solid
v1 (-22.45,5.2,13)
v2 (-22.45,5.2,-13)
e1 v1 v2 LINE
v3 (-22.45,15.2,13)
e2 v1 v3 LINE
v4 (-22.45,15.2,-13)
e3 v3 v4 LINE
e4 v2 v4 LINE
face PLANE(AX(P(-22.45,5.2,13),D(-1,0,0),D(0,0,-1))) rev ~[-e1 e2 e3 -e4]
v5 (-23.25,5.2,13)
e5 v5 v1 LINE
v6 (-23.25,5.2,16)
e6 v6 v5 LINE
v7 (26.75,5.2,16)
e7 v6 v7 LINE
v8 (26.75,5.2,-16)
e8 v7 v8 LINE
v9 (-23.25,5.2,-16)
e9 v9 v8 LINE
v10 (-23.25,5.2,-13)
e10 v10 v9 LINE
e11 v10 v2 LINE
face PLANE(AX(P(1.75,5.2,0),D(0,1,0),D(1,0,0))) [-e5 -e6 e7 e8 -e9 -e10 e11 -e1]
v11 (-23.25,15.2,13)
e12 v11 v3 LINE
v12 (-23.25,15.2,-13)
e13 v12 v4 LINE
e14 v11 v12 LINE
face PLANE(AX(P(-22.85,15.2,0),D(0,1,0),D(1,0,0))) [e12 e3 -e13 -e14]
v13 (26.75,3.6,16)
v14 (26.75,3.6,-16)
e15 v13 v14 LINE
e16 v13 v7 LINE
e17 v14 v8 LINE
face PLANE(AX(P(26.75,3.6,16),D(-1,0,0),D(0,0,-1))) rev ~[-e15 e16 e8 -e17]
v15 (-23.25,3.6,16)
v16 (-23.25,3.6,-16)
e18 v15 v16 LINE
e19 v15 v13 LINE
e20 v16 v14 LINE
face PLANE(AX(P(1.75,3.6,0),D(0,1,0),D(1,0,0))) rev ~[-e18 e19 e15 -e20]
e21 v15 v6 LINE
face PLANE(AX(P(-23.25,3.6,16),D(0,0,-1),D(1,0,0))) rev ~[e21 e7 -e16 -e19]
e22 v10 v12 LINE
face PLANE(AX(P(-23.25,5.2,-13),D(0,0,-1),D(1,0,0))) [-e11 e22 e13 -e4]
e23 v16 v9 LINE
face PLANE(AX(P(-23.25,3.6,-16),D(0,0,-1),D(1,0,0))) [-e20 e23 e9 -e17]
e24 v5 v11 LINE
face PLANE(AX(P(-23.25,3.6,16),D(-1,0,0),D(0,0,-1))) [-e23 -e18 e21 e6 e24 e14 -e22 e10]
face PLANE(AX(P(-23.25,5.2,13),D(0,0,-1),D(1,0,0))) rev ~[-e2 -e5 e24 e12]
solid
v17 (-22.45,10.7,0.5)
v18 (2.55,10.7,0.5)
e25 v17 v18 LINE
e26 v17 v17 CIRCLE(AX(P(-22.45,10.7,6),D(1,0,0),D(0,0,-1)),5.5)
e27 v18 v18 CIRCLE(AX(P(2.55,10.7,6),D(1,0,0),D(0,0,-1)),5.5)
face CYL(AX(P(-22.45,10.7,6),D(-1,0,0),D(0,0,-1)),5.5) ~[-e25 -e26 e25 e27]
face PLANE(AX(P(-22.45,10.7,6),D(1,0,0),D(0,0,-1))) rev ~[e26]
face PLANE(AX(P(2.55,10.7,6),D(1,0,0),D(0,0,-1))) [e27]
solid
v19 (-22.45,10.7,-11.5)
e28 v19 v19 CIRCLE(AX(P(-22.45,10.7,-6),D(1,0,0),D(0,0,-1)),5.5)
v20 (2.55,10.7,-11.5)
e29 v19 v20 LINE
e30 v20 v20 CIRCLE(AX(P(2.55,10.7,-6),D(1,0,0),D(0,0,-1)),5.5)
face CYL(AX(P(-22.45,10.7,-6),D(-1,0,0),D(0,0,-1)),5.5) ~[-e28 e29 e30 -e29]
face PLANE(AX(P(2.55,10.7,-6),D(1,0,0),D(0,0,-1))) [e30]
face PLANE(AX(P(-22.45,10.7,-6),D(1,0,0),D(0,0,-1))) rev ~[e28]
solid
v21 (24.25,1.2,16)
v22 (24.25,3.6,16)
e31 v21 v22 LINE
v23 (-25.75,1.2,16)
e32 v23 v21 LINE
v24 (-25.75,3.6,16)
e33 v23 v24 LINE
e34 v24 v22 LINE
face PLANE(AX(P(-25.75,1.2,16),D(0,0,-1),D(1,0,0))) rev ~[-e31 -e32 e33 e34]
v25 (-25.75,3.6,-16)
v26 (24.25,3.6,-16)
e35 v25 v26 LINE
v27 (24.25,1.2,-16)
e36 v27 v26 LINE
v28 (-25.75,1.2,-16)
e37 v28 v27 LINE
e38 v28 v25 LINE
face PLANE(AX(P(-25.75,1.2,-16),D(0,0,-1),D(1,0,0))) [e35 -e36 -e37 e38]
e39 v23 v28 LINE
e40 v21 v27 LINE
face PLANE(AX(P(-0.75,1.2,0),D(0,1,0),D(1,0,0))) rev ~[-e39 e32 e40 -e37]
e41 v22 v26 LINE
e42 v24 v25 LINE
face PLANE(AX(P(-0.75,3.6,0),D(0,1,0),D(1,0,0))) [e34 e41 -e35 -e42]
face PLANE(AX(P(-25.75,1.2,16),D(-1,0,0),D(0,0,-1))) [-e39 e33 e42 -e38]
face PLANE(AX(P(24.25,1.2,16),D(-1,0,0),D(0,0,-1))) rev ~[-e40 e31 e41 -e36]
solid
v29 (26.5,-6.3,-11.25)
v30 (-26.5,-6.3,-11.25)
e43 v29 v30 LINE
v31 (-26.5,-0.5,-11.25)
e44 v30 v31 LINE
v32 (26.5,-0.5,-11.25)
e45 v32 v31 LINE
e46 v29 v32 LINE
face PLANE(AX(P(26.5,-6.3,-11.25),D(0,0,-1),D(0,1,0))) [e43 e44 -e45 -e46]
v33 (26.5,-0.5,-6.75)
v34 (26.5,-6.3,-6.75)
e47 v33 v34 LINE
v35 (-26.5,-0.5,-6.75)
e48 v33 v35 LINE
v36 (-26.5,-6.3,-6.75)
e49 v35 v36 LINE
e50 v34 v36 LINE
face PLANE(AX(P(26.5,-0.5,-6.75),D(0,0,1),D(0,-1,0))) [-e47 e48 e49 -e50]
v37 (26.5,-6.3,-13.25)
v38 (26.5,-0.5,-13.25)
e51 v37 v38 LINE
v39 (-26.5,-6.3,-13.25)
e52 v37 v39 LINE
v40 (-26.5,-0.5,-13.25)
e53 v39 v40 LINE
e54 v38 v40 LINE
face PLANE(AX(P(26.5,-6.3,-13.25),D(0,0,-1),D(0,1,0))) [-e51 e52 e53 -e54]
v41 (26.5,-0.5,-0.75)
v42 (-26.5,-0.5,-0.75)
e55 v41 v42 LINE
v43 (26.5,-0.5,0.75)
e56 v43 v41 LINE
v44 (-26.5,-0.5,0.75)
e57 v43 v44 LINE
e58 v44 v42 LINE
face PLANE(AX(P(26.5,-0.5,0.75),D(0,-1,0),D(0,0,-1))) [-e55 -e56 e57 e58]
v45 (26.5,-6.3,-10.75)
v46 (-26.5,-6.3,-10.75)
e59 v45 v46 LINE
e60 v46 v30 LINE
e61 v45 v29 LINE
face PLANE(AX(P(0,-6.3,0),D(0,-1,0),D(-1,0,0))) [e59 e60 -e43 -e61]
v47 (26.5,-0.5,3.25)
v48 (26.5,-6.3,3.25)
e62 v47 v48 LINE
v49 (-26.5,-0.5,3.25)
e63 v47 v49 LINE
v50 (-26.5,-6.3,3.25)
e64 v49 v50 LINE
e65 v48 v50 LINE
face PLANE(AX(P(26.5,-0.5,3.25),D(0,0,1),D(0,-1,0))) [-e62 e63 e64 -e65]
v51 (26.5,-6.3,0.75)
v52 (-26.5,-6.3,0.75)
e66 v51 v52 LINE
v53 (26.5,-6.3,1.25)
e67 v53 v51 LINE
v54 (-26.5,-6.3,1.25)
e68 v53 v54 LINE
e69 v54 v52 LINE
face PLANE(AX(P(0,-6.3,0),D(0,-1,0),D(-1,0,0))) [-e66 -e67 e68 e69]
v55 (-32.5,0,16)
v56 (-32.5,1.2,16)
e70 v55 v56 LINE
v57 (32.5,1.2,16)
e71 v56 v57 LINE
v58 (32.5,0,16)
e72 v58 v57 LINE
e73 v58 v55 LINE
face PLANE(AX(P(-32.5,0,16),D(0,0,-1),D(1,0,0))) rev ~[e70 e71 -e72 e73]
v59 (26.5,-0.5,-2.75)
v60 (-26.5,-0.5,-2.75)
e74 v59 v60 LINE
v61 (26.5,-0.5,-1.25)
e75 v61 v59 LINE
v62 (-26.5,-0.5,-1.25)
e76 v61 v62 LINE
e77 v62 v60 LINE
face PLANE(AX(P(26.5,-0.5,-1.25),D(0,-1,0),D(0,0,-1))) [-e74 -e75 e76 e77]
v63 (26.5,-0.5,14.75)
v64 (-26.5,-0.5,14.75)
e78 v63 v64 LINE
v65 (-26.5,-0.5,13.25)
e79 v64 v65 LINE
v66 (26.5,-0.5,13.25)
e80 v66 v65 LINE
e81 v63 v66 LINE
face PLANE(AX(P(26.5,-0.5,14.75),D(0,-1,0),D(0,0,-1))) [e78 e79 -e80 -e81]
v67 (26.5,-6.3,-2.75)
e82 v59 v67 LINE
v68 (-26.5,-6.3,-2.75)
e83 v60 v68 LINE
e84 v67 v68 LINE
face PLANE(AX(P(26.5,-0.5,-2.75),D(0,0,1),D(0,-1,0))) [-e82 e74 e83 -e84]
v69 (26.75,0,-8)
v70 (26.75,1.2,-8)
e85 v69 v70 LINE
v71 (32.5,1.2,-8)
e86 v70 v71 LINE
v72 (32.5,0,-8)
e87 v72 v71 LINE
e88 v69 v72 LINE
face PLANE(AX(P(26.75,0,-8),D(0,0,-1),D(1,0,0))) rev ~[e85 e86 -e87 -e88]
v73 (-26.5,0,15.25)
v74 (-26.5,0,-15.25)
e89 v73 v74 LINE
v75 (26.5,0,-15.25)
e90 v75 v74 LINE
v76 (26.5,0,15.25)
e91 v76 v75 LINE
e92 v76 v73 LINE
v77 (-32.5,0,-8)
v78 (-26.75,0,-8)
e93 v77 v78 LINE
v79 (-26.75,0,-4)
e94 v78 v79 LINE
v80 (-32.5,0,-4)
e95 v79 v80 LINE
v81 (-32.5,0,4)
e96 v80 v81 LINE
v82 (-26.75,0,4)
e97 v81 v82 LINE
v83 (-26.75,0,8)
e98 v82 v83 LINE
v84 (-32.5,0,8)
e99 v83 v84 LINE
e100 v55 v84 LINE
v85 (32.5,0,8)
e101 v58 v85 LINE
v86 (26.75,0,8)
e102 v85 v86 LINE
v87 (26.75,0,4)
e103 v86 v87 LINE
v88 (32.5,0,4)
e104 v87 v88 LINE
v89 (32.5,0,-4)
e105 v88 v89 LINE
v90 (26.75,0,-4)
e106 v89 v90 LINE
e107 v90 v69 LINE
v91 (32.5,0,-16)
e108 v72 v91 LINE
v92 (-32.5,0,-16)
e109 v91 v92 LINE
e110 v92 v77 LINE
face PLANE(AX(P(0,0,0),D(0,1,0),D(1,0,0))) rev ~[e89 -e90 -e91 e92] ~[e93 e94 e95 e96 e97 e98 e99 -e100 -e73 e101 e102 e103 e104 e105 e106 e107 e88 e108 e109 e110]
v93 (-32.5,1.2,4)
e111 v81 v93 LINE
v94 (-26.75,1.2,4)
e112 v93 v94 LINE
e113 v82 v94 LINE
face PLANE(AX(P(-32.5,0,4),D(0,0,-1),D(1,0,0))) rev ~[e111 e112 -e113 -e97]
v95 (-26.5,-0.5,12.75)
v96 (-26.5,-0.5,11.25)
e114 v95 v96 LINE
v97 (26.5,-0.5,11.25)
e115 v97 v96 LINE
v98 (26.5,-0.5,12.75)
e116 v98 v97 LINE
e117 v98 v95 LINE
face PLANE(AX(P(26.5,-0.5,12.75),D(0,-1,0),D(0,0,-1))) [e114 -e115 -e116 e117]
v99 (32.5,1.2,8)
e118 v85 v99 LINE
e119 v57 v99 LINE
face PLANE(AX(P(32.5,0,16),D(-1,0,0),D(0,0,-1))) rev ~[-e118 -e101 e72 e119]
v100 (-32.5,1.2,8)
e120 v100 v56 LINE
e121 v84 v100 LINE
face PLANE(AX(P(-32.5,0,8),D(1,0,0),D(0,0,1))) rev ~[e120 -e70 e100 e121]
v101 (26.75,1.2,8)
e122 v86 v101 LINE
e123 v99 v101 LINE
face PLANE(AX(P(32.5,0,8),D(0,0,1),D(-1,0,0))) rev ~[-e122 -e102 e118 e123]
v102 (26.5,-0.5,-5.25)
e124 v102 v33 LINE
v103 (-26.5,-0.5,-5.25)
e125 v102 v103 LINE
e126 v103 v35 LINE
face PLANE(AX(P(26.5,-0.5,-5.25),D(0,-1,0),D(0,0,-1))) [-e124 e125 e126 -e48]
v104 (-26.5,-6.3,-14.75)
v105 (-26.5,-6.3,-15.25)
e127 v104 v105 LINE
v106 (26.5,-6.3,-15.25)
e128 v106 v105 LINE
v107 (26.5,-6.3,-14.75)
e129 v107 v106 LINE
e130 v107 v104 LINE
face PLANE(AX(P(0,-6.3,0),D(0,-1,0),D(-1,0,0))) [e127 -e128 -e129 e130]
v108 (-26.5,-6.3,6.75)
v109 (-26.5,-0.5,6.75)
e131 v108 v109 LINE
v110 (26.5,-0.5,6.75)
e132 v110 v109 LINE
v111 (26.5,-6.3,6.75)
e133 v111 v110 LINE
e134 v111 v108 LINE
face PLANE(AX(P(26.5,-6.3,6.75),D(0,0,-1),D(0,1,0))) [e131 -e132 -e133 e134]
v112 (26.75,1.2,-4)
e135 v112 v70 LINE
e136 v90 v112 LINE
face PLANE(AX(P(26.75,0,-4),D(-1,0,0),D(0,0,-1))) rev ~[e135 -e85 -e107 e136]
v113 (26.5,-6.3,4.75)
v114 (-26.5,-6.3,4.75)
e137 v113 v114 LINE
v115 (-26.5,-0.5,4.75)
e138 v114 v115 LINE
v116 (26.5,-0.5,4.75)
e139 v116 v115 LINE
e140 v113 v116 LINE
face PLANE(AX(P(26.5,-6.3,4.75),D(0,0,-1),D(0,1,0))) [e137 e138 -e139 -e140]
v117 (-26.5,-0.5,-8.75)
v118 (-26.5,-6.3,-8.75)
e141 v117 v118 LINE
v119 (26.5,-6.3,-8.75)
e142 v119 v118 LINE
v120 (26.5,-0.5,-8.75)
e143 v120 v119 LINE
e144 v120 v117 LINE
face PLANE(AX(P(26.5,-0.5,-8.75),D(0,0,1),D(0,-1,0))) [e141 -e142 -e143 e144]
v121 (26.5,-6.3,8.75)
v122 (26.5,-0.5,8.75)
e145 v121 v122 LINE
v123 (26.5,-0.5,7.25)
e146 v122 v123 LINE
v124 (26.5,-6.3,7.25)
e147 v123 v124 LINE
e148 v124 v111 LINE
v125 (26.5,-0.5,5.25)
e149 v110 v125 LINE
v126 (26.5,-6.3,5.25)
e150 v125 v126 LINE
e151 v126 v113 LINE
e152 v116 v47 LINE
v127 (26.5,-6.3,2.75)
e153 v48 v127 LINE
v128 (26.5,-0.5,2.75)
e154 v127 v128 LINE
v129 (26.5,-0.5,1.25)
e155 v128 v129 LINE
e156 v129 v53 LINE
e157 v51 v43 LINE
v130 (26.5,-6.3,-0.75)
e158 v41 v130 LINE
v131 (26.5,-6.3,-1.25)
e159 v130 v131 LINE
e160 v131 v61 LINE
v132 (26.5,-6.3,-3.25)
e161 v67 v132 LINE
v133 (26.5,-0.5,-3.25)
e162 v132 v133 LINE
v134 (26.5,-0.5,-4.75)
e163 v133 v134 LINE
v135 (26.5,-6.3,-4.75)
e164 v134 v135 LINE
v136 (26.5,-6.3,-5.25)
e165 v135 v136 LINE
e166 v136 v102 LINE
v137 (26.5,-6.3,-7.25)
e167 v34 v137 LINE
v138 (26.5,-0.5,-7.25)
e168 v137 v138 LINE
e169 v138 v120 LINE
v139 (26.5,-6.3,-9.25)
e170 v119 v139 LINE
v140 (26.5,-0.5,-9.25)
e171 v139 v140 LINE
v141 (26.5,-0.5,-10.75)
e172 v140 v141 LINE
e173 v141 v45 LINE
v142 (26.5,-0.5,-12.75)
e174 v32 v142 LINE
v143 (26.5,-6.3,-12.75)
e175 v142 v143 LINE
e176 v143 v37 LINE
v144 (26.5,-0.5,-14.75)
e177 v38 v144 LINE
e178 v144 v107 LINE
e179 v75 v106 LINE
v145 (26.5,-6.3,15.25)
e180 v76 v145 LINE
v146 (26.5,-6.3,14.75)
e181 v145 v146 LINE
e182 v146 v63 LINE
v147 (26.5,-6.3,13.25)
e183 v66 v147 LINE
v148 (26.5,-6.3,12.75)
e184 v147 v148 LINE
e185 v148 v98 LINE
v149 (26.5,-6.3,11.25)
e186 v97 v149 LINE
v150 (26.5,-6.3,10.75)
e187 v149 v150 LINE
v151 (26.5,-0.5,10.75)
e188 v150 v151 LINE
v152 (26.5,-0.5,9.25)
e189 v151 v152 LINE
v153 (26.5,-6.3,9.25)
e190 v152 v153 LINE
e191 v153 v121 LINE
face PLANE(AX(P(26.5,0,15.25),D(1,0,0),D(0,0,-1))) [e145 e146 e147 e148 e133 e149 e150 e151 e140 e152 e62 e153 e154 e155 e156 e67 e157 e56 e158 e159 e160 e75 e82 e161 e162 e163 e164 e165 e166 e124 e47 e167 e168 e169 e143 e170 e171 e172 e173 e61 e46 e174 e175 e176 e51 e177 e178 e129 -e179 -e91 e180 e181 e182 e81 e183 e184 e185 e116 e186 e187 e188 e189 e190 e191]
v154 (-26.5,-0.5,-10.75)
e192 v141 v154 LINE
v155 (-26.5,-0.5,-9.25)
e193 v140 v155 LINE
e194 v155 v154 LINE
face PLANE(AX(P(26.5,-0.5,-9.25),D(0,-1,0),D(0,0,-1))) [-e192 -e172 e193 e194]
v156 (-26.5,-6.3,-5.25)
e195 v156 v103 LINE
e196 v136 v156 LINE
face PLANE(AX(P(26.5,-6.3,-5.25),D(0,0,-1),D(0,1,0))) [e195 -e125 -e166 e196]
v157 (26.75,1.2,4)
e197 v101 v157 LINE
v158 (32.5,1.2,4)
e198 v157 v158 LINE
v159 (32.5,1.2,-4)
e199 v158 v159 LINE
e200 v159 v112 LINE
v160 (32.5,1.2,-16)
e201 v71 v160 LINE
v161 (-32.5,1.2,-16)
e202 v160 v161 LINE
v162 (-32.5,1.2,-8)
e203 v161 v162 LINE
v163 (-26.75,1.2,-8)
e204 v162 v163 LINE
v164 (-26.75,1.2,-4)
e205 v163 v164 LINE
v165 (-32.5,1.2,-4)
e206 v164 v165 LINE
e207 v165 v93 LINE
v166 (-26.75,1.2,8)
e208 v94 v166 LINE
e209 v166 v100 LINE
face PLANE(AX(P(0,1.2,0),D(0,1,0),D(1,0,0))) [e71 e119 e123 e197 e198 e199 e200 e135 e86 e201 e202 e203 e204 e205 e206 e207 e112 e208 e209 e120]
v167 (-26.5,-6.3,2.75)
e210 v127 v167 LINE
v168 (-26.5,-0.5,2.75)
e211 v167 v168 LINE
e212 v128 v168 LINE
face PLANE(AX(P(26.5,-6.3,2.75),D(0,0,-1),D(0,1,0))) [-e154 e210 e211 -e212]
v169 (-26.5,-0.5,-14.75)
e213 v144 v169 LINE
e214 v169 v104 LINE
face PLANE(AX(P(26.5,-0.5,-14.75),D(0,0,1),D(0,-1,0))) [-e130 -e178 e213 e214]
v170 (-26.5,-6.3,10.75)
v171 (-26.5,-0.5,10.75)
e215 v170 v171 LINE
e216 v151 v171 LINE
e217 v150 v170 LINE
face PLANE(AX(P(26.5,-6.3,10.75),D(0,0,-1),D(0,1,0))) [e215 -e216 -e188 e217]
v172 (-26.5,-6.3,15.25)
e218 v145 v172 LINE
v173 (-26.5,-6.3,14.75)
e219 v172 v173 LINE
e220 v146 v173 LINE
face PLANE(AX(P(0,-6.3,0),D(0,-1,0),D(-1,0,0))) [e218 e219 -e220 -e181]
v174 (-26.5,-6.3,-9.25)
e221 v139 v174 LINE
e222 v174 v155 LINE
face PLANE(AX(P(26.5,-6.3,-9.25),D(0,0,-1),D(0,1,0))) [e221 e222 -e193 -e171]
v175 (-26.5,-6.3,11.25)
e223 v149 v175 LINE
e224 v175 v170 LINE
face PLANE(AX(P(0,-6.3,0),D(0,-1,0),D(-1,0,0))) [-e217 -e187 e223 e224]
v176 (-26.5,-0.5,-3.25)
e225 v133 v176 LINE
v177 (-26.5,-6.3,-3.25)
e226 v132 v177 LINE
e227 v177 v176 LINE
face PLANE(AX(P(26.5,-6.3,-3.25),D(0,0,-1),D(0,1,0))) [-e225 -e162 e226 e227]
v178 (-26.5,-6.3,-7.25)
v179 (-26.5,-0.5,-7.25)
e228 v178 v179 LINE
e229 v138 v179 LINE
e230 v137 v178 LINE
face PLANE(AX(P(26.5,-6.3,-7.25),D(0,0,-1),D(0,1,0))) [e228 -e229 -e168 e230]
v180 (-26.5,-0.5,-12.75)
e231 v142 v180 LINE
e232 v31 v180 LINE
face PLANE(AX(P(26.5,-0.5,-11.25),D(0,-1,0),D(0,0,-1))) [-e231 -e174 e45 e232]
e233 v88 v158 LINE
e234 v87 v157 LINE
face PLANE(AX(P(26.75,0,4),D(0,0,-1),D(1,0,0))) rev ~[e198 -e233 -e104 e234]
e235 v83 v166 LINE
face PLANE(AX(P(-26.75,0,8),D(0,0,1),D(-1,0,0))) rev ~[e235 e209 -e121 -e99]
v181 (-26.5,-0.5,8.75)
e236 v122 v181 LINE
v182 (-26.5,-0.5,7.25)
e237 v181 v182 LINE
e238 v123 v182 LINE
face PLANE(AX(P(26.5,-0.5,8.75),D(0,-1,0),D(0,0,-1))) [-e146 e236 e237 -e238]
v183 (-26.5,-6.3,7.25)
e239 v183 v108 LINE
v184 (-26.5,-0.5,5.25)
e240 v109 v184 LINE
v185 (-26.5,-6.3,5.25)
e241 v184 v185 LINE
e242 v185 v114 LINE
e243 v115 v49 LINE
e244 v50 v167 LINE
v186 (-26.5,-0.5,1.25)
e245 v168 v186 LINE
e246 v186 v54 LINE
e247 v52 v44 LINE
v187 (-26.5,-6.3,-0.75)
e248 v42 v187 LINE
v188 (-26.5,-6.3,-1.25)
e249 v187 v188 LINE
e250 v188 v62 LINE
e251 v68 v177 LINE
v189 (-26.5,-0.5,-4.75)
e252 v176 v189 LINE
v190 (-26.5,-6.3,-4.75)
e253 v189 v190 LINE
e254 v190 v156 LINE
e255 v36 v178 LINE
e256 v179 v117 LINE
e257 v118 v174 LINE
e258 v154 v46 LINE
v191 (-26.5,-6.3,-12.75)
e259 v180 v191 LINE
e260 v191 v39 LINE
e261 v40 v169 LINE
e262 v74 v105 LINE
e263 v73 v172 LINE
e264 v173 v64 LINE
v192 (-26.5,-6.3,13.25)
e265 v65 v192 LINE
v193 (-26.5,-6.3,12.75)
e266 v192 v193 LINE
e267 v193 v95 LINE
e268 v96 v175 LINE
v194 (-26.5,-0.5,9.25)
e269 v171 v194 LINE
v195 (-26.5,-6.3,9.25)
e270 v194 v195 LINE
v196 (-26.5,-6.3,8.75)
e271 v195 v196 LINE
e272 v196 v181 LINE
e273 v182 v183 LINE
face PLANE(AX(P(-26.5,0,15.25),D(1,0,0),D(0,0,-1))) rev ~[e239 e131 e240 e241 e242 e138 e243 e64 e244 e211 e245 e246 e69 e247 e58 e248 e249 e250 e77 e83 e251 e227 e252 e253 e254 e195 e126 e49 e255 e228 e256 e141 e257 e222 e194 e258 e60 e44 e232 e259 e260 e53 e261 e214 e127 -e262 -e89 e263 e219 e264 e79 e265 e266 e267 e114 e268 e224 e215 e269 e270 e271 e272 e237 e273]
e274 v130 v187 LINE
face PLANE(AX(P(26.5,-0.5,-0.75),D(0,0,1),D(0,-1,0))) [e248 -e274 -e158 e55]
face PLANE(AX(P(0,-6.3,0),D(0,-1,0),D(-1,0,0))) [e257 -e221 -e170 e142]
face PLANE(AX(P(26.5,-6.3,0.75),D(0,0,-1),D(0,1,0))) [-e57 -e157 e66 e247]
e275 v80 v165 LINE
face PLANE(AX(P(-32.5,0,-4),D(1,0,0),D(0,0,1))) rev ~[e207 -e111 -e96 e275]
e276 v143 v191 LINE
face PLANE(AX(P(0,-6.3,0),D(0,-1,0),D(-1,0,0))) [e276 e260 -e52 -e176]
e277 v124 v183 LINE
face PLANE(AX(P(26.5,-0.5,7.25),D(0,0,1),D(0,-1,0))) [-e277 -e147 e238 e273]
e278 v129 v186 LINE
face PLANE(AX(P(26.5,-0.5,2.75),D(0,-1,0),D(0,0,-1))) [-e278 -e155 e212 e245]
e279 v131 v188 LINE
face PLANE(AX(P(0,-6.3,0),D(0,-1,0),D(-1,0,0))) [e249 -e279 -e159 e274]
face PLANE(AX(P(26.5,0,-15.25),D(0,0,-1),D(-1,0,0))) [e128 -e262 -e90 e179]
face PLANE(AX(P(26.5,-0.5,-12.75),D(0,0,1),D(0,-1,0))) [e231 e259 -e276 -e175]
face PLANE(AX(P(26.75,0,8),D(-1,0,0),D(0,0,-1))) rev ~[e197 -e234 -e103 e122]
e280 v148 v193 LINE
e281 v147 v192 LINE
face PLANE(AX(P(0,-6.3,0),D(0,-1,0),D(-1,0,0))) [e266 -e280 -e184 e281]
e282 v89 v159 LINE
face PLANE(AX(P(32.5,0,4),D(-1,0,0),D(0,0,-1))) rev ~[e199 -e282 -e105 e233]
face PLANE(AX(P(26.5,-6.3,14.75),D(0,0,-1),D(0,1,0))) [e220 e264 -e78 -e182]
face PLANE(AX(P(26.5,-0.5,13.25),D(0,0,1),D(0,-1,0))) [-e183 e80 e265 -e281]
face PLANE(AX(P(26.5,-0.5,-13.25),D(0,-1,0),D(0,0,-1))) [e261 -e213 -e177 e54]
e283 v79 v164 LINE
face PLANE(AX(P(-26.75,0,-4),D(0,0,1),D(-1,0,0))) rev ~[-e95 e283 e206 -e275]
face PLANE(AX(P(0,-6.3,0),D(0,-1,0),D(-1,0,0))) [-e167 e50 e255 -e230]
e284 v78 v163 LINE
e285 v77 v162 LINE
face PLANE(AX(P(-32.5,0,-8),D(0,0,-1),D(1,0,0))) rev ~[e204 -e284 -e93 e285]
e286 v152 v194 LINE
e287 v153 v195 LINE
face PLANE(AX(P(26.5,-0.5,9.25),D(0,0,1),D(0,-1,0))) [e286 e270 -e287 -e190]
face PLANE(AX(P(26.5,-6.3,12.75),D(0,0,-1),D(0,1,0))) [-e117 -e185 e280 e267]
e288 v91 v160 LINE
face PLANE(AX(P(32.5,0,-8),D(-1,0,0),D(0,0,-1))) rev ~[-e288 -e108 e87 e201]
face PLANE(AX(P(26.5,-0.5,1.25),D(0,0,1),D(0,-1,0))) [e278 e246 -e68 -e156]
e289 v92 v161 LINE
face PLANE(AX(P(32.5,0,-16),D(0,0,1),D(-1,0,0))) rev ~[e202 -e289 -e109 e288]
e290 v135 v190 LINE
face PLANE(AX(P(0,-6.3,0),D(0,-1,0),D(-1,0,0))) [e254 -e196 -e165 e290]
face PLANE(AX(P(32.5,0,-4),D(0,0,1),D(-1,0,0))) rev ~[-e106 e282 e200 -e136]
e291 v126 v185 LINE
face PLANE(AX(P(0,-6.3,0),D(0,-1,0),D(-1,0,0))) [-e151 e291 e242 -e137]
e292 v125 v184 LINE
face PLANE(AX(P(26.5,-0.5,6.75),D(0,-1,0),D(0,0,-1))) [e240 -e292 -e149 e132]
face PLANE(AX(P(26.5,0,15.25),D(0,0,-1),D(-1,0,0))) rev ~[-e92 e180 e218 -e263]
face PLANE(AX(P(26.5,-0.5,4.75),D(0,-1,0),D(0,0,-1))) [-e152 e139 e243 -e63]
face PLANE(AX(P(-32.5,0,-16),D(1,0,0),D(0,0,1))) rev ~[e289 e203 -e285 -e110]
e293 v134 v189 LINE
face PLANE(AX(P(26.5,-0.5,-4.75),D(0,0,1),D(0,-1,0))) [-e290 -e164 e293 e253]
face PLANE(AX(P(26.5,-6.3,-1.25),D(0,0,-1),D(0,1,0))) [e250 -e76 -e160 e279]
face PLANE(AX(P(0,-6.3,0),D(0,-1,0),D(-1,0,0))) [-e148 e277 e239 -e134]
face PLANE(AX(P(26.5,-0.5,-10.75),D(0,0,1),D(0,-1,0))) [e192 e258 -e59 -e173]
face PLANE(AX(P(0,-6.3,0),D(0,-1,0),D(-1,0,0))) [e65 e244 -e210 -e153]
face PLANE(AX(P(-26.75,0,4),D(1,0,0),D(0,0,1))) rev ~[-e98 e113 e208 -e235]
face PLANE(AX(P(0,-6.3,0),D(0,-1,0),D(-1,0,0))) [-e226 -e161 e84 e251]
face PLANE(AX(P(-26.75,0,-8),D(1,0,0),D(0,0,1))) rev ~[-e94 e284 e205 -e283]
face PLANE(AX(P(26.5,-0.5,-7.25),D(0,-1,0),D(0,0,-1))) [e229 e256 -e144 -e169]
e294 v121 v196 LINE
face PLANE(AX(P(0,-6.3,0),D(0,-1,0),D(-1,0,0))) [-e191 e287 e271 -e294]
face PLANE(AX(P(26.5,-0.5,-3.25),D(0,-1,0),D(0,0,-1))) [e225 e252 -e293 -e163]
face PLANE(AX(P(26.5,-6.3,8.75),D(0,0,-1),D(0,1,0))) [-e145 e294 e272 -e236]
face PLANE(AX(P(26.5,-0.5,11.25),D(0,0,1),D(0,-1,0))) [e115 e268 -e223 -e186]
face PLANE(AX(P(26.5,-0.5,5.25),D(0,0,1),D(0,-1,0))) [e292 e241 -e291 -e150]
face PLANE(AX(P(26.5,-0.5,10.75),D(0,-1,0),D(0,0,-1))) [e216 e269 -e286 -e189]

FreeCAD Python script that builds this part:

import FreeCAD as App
import Part
import Sketcher

doc = App.newDocument("Part")
body = doc.addObject("PartDesign::Body", "Body")

# Sketch on XZ plane
sketch1 = doc.addObject("Sketcher::SketchObject", "Sketch")
body.addObject(sketch1)
sketch1.AttachmentSupport = (doc.XZ_Plane, [""])
sketch1.MapMode = "FlatFace"
sketch1.addGeometry([
    Part.LineSegment(App.Vector(-32.5, -16, 0), App.Vector(-32.5, -8, 0)),  # 0
    Part.LineSegment(App.Vector(-32.5, -8, 0), App.Vector(-26.75, -8, 0)),  # 1
    Part.LineSegment(App.Vector(-26.75, -8, 0), App.Vector(-26.75, -4, 0)),  # 2
    Part.LineSegment(App.Vector(-26.75, -4, 0), App.Vector(-32.5, -4, 0)),  # 3
    Part.LineSegment(App.Vector(-32.5, -4, 0), App.Vector(-32.5, 4, 0)),  # 4
    Part.LineSegment(App.Vector(-32.5, 4, 0), App.Vector(-26.75, 4, 0)),  # 5
    Part.LineSegment(App.Vector(-26.75, 4, 0), App.Vector(-26.75, 8, 0)),  # 6
    Part.LineSegment(App.Vector(-26.75, 8, 0), App.Vector(-32.5, 8, 0)),  # 7
    Part.LineSegment(App.Vector(-32.5, 8, 0), App.Vector(-32.5, 16, 0)),  # 8
    Part.LineSegment(App.Vector(-32.5, 16, 0), App.Vector(32.5, 16, 0)),  # 9
    Part.LineSegment(App.Vector(32.5, 16, 0), App.Vector(32.5, 8, 0)),  # 10
    Part.LineSegment(App.Vector(32.5, 8, 0), App.Vector(26.75, 8, 0)),  # 11
    Part.LineSegment(App.Vector(26.75, 8, 0), App.Vector(26.75, 4, 0)),  # 12
    Part.LineSegment(App.Vector(26.75, 4, 0), App.Vector(32.5, 4, 0)),  # 13
    Part.LineSegment(App.Vector(32.5, 4, 0), App.Vector(32.5, -4, 0)),  # 14
    Part.LineSegment(App.Vector(32.5, -4, 0), App.Vector(26.75, -4, 0)),  # 15
    Part.LineSegment(App.Vector(26.75, -4, 0), App.Vector(26.75, -8, 0)),  # 16
    Part.LineSegment(App.Vector(26.75, -8, 0), App.Vector(32.5, -8, 0)),  # 17
    Part.LineSegment(App.Vector(32.5, -8, 0), App.Vector(32.5, -16, 0)),  # 18
    Part.LineSegment(App.Vector(32.5, -16, 0), App.Vector(-32.5, -16, 0)),  # 19
], False)
sketch1.addConstraint([
    Sketcher.Constraint("Coincident", 0, 2, 1, 1),
    Sketcher.Constraint("Coincident", 1, 2, 2, 1),
    Sketcher.Constraint("Coincident", 2, 2, 3, 1),
    Sketcher.Constraint("Coincident", 3, 2, 4, 1),
    Sketcher.Constraint("Coincident", 4, 2, 5, 1),
    Sketcher.Constraint("Coincident", 5, 2, 6, 1),
    Sketcher.Constraint("Coincident", 6, 2, 7, 1),
    Sketcher.Constraint("Coincident", 7, 2, 8, 1),
    Sketcher.Constraint("Coincident", 8, 2, 9, 1),
    Sketcher.Constraint("Coincident", 9, 2, 10, 1),
    Sketcher.Constraint("Coincident", 10, 2, 11, 1),
    Sketcher.Constraint("Coincident", 11, 2, 12, 1),
    Sketcher.Constraint("Coincident", 12, 2, 13, 1),
    Sketcher.Constraint("Coincident", 13, 2, 14, 1),
    Sketcher.Constraint("Coincident", 14, 2, 15, 1),
    Sketcher.Constraint("Coincident", 15, 2, 16, 1),
    Sketcher.Constraint("Coincident", 16, 2, 17, 1),
    Sketcher.Constraint("Coincident", 17, 2, 18, 1),
    Sketcher.Constraint("Coincident", 18, 2, 19, 1),
    Sketcher.Constraint("Coincident", 19, 2, 0, 1),
    Sketcher.Constraint("Vertical", 0),
    Sketcher.Constraint("Horizontal", 1),
    Sketcher.Constraint("Vertical", 2),
    Sketcher.Constraint("Horizontal", 3),
    Sketcher.Constraint("Vertical", 4),
    Sketcher.Constraint("Horizontal", 5),
    Sketcher.Constraint("Vertical", 6),
    Sketcher.Constraint("Horizontal", 7),
    Sketcher.Constraint("Vertical", 8),
    Sketcher.Constraint("Horizontal", 9),
    Sketcher.Constraint("Vertical", 10),
    Sketcher.Constraint("Horizontal", 11),
    Sketcher.Constraint("Vertical", 12),
    Sketcher.Constraint("Horizontal", 13),
    Sketcher.Constraint("Vertical", 14),
    Sketcher.Constraint("Horizontal", 15),
    Sketcher.Constraint("Vertical", 16),
    Sketcher.Constraint("Horizontal", 17),
    Sketcher.Constraint("Vertical", 18),
    Sketcher.Constraint("Horizontal", 19),
    Sketcher.Constraint("Symmetric", 0, 2, 10, 2, -1, 1),
    Sketcher.Constraint("Symmetric", 2, 2, 12, 2, -1, 1),
    Sketcher.Constraint("Symmetric", 4, 2, 14, 2, -1, 1),
    Sketcher.Constraint("Symmetric", 6, 2, 16, 2, -1, 1),
    Sketcher.Constraint("Symmetric", 8, 2, 18, 2, -1, 1),
    Sketcher.Constraint("Symmetric", 7, 2, 10, 2, -2),
    Sketcher.Constraint("Symmetric", 5, 2, 12, 2, -2),
    Sketcher.Constraint("Vertical", 0, 2, 3, 2),
    Sketcher.Constraint("Equal", 0, 4),
    Sketcher.Constraint("DistanceX", 9, 1, 9, 2, 65.0),
    Sketcher.Constraint("DistanceY", 0, 1, 0, 2, 8.0),
    Sketcher.Constraint("DistanceY", 2, 1, 2, 2, 4.0),
    Sketcher.Constraint("DistanceX", 1, 1, 1, 2, 5.75),
])
pad1 = doc.addObject("PartDesign::Pad", "Pad")
body.addObject(pad1)
pad1.Profile = sketch1
pad1.Length = 1.2
pad1.Reversed = True

# Sketch on XZ plane
sketch2 = doc.addObject("Sketcher::SketchObject", "Sketch001")
body.addObject(sketch2)
sketch2.AttachmentSupport = (doc.XZ_Plane, [""])
sketch2.MapMode = "FlatFace"
sketch2.addGeometry([
    Part.LineSegment(App.Vector(26.5, -15.25, 0), App.Vector(26.5, 15.25, 0)),
    Part.LineSegment(App.Vector(26.5, 15.25, 0), App.Vector(-26.5, 15.25, 0)),
    Part.LineSegment(App.Vector(-26.5, 15.25, 0), App.Vector(-26.5, -15.25, 0)),
    Part.LineSegment(App.Vector(-26.5, -15.25, 0), App.Vector(26.5, -15.25, 0)),
], False)
sketch2.addConstraint([
    Sketcher.Constraint("Coincident", 0, 2, 1, 1),
    Sketcher.Constraint("Coincident", 1, 2, 2, 1),
    Sketcher.Constraint("Coincident", 2, 2, 3, 1),
    Sketcher.Constraint("Coincident", 3, 2, 0, 1),
    Sketcher.Constraint("Vertical", 0),
    Sketcher.Constraint("Horizontal", 1),
    Sketcher.Constraint("Vertical", 2),
    Sketcher.Constraint("Horizontal", 3),
    Sketcher.Constraint("Symmetric", 0, 2, 2, 2, -1, 1),
    Sketcher.Constraint("DistanceX", 1, 2, 1, 1, 53.0),
    Sketcher.Constraint("DistanceY", 0, 1, 0, 2, 30.5),
])
pad2 = doc.addObject("PartDesign::Pad", "Pad001")
body.addObject(pad2)
pad2.Profile = sketch2
pad2.Length = 6.3

# Sketch on YZ plane
sketch3 = doc.addObject("Sketcher::SketchObject", "Sketch002")
body.addObject(sketch3)
sketch3.AttachmentSupport = (doc.YZ_Plane, [""])
sketch3.MapMode = "FlatFace"
sketch3.AttachmentOffset = App.Placement(App.Vector(0, 0, 26.5), App.Rotation())
sketch3.addGeometry([
    Part.LineSegment(App.Vector(-6.3, 15.25, 0), App.Vector(0, 15.25, 0)),  # 0
    Part.LineSegment(App.Vector(0, 15.25, 0), App.Vector(0, 23.612451, 0)),  # 1
    Part.LineSegment(App.Vector(0, 23.612451, 0), App.Vector(-15.947306, 23.612451, 0)),  # 2
    Part.LineSegment(App.Vector(-15.947306, 23.612451, 0), App.Vector(-15.947306, -23.612451, 0)),  # 3
    Part.LineSegment(App.Vector(-15.947306, -23.612451, 0), App.Vector(0, -23.612451, 0)),  # 4
    Part.LineSegment(App.Vector(0, -23.612451, 0), App.Vector(0, -15.25, 0)),  # 5
    Part.LineSegment(App.Vector(0, -15.25, 0), App.Vector(-6.3, -15.25, 0)),  # 6
    Part.LineSegment(App.Vector(-6.3, -15.25, 0), App.Vector(-6.3, -14.75, 0)),  # 7
    Part.LineSegment(App.Vector(-6.3, -14.75, 0), App.Vector(-0.5, -14.75, 0)),  # 8
    Part.LineSegment(App.Vector(-0.5, -14.75, 0), App.Vector(-0.5, -13.25, 0)),  # 9
    Part.LineSegment(App.Vector(-0.5, -13.25, 0), App.Vector(-6.3, -13.25, 0)),  # 10
    Part.LineSegment(App.Vector(-6.3, -13.25, 0), App.Vector(-6.3, -12.75, 0)),  # 11
    Part.LineSegment(App.Vector(-6.3, -12.75, 0), App.Vector(-0.5, -12.75, 0)),  # 12
    Part.LineSegment(App.Vector(-0.5, -12.75, 0), App.Vector(-0.5, -11.25, 0)),  # 13
    Part.LineSegment(App.Vector(-0.5, -11.25, 0), App.Vector(-6.3, -11.25, 0)),  # 14
    Part.LineSegment(App.Vector(-6.3, -11.25, 0), App.Vector(-6.3, -10.75, 0)),  # 15
    Part.LineSegment(App.Vector(-6.3, -10.75, 0), App.Vector(-0.5, -10.75, 0)),  # 16
    Part.LineSegment(App.Vector(-0.5, -10.75, 0), App.Vector(-0.5, -9.25, 0)),  # 17
    Part.LineSegment(App.Vector(-0.5, -9.25, 0), App.Vector(-6.3, -9.25, 0)),  # 18
    Part.LineSegment(App.Vector(-6.3, -9.25, 0), App.Vector(-6.3, -8.75, 0)),  # 19
    Part.LineSegment(App.Vector(-6.3, -8.75, 0), App.Vector(-0.5, -8.75, 0)),  # 20
    Part.LineSegment(App.Vector(-0.5, -8.75, 0), App.Vector(-0.5, -7.25, 0)),  # 21
    Part.LineSegment(App.Vector(-0.5, -7.25, 0), App.Vector(-6.3, -7.25, 0)),  # 22
    Part.LineSegment(App.Vector(-6.3, -7.25, 0), App.Vector(-6.3, -6.75, 0)),  # 23
    Part.LineSegment(App.Vector(-6.3, -6.75, 0), App.Vector(-0.5, -6.75, 0)),  # 24
    Part.LineSegment(App.Vector(-0.5, -6.75, 0), App.Vector(-0.5, -5.25, 0)),  # 25
    Part.LineSegment(App.Vector(-0.5, -5.25, 0), App.Vector(-6.3, -5.25, 0)),  # 26
    Part.LineSegment(App.Vector(-6.3, -5.25, 0), App.Vector(-6.3, -4.75, 0)),  # 27
    Part.LineSegment(App.Vector(-6.3, -4.75, 0), App.Vector(-0.5, -4.75, 0)),  # 28
    Part.LineSegment(App.Vector(-0.5, -4.75, 0), App.Vector(-0.5, -3.25, 0)),  # 29
    Part.LineSegment(App.Vector(-0.5, -3.25, 0), App.Vector(-6.3, -3.25, 0)),  # 30
    Part.LineSegment(App.Vector(-6.3, -3.25, 0), App.Vector(-6.3, -2.75, 0)),  # 31
    Part.LineSegment(App.Vector(-6.3, -2.75, 0), App.Vector(-0.5, -2.75, 0)),  # 32
    Part.LineSegment(App.Vector(-0.5, -2.75, 0), App.Vector(-0.5, -1.25, 0)),  # 33
    Part.LineSegment(App.Vector(-0.5, -1.25, 0), App.Vector(-6.3, -1.25, 0)),  # 34
    Part.LineSegment(App.Vector(-6.3, -1.25, 0), App.Vector(-6.3, -0.75, 0)),  # 35
    Part.LineSegment(App.Vector(-6.3, -0.75, 0), App.Vector(-0.5, -0.75, 0)),  # 36
    Part.LineSegment(App.Vector(-0.5, -0.75, 0), App.Vector(-0.5, 0.75, 0)),  # 37
    Part.LineSegment(App.Vector(-0.5, 0.75, 0), App.Vector(-6.3, 0.75, 0)),  # 38
    Part.LineSegment(App.Vector(-6.3, 0.75, 0), App.Vector(-6.3, 1.25, 0)),  # 39
    Part.LineSegment(App.Vector(-6.3, 1.25, 0), App.Vector(-0.5, 1.25, 0)),  # 40
    Part.LineSegment(App.Vector(-0.5, 1.25, 0), App.Vector(-0.5, 2.75, 0)),  # 41
    Part.LineSegment(App.Vector(-0.5, 2.75, 0), App.Vector(-6.3, 2.75, 0)),  # 42
    Part.LineSegment(App.Vector(-6.3, 2.75, 0), App.Vector(-6.3, 3.25, 0)),  # 43
    Part.LineSegment(App.Vector(-6.3, 3.25, 0), App.Vector(-0.5, 3.25, 0)),  # 44
    Part.LineSegment(App.Vector(-0.5, 3.25, 0), App.Vector(-0.5, 4.75, 0)),  # 45
    Part.LineSegment(App.Vector(-0.5, 4.75, 0), App.Vector(-6.3, 4.75, 0)),  # 46
    Part.LineSegment(App.Vector(-6.3, 4.75, 0), App.Vector(-6.3, 5.25, 0)),  # 47
    Part.LineSegment(App.Vector(-6.3, 5.25, 0), App.Vector(-0.5, 5.25, 0)),  # 48
    Part.LineSegment(App.Vector(-0.5, 5.25, 0), App.Vector(-0.5, 6.75, 0)),  # 49
    Part.LineSegment(App.Vector(-0.5, 6.75, 0), App.Vector(-6.3, 6.75, 0)),  # 50
    Part.LineSegment(App.Vector(-6.3, 6.75, 0), App.Vector(-6.3, 7.25, 0)),  # 51
    Part.LineSegment(App.Vector(-6.3, 7.25, 0), App.Vector(-0.5, 7.25, 0)),  # 52
    Part.LineSegment(App.Vector(-0.5, 7.25, 0), App.Vector(-0.5, 8.75, 0)),  # 53
    Part.LineSegment(App.Vector(-0.5, 8.75, 0), App.Vector(-6.3, 8.75, 0)),  # 54
    Part.LineSegment(App.Vector(-6.3, 8.75, 0), App.Vector(-6.3, 9.25, 0)),  # 55
    Part.LineSegment(App.Vector(-6.3, 9.25, 0), App.Vector(-0.5, 9.25, 0)),  # 56
    Part.LineSegment(App.Vector(-0.5, 9.25, 0), App.Vector(-0.5, 10.75, 0)),  # 57
    Part.LineSegment(App.Vector(-0.5, 10.75, 0), App.Vector(-6.3, 10.75, 0)),  # 58
    Part.LineSegment(App.Vector(-6.3, 10.75, 0), App.Vector(-6.3, 11.25, 0)),  # 59
    Part.LineSegment(App.Vector(-6.3, 11.25, 0), App.Vector(-0.5, 11.25, 0)),  # 60
    Part.LineSegment(App.Vector(-0.5, 11.25, 0), App.Vector(-0.5, 12.75, 0)),  # 61
    Part.LineSegment(App.Vector(-0.5, 12.75, 0), App.Vector(-6.3, 12.75, 0)),  # 62
    Part.LineSegment(App.Vector(-6.3, 12.75, 0), App.Vector(-6.3, 13.25, 0)),  # 63
    Part.LineSegment(App.Vector(-6.3, 13.25, 0), App.Vector(-0.5, 13.25, 0)),  # 64
    Part.LineSegment(App.Vector(-0.5, 13.25, 0), App.Vector(-0.5, 14.75, 0)),  # 65
    Part.LineSegment(App.Vector(-0.5, 14.75, 0), App.Vector(-6.3, 14.75, 0)),  # 66
    Part.LineSegment(App.Vector(-6.3, 14.75, 0), App.Vector(-6.3, 15.25, 0)),  # 67
], False)
sketch3.addConstraint([
    Sketcher.Constraint("Coincident", 0, 2, 1, 1),
    Sketcher.Constraint("Coincident", 1, 2, 2, 1),
    Sketcher.Constraint("Coincident", 2, 2, 3, 1),
    Sketcher.Constraint("Coincident", 3, 2, 4, 1),
    Sketcher.Constraint("Coincident", 4, 2, 5, 1),
    Sketcher.Constraint("Coincident", 5, 2, 6, 1),
    Sketcher.Constraint("Coincident", 6, 2, 7, 1),
    Sketcher.Constraint("Coincident", 7, 2, 8, 1),
    Sketcher.Constraint("Coincident", 8, 2, 9, 1),
    Sketcher.Constraint("Coincident", 9, 2, 10, 1),
    Sketcher.Constraint("Coincident", 10, 2, 11, 1),
    Sketcher.Constraint("Coincident", 11, 2, 12, 1),
    Sketcher.Constraint("Coincident", 12, 2, 13, 1),
    Sketcher.Constraint("Coincident", 13, 2, 14, 1),
    Sketcher.Constraint("Coincident", 14, 2, 15, 1),
    Sketcher.Constraint("Coincident", 15, 2, 16, 1),
    Sketcher.Constraint("Coincident", 16, 2, 17, 1),
    Sketcher.Constraint("Coincident", 17, 2, 18, 1),
    Sketcher.Constraint("Coincident", 18, 2, 19, 1),
    Sketcher.Constraint("Coincident", 19, 2, 20, 1),
    Sketcher.Constraint("Coincident", 20, 2, 21, 1),
    Sketcher.Constraint("Coincident", 21, 2, 22, 1),
    Sketcher.Constraint("Coincident", 22, 2, 23, 1),
    Sketcher.Constraint("Coincident", 23, 2, 24, 1),
    Sketcher.Constraint("Coincident", 24, 2, 25, 1),
    Sketcher.Constraint("Coincident", 25, 2, 26, 1),
    Sketcher.Constraint("Coincident", 26, 2, 27, 1),
    Sketcher.Constraint("Coincident", 27, 2, 28, 1),
    Sketcher.Constraint("Coincident", 28, 2, 29, 1),
    Sketcher.Constraint("Coincident", 29, 2, 30, 1),
    Sketcher.Constraint("Coincident", 30, 2, 31, 1),
    Sketcher.Constraint("Coincident", 31, 2, 32, 1),
    Sketcher.Constraint("Coincident", 32, 2, 33, 1),
    Sketcher.Constraint("Coincident", 33, 2, 34, 1),
    Sketcher.Constraint("Coincident", 34, 2, 35, 1),
    Sketcher.Constraint("Coincident", 35, 2, 36, 1),
    Sketcher.Constraint("Coincident", 36, 2, 37, 1),
    Sketcher.Constraint("Coincident", 37, 2, 38, 1),
    Sketcher.Constraint("Coincident", 38, 2, 39, 1),
    Sketcher.Constraint("Coincident", 39, 2, 40, 1),
    Sketcher.Constraint("Coincident", 40, 2, 41, 1),
    Sketcher.Constraint("Coincident", 41, 2, 42, 1),
    Sketcher.Constraint("Coincident", 42, 2, 43, 1),
    Sketcher.Constraint("Coincident", 43, 2, 44, 1),
    Sketcher.Constraint("Coincident", 44, 2, 45, 1),
    Sketcher.Constraint("Coincident", 45, 2, 46, 1),
    Sketcher.Constraint("Coincident", 46, 2, 47, 1),
    Sketcher.Constraint("Coincident", 47, 2, 48, 1),
    Sketcher.Constraint("Coincident", 48, 2, 49, 1),
    Sketcher.Constraint("Coincident", 49, 2, 50, 1),
    Sketcher.Constraint("Coincident", 50, 2, 51, 1),
    Sketcher.Constraint("Coincident", 51, 2, 52, 1),
    Sketcher.Constraint("Coincident", 52, 2, 53, 1),
    Sketcher.Constraint("Coincident", 53, 2, 54, 1),
    Sketcher.Constraint("Coincident", 54, 2, 55, 1),
    Sketcher.Constraint("Coincident", 55, 2, 56, 1),
    Sketcher.Constraint("Coincident", 56, 2, 57, 1),
    Sketcher.Constraint("Coincident", 57, 2, 58, 1),
    Sketcher.Constraint("Coincident", 58, 2, 59, 1),
    Sketcher.Constraint("Coincident", 59, 2, 60, 1),
    Sketcher.Constraint("Coincident", 60, 2, 61, 1),
    Sketcher.Constraint("Coincident", 61, 2, 62, 1),
    Sketcher.Constraint("Coincident", 62, 2, 63, 1),
    Sketcher.Constraint("Coincident", 63, 2, 64, 1),
    Sketcher.Constraint("Coincident", 64, 2, 65, 1),
    Sketcher.Constraint("Coincident", 65, 2, 66, 1),
    Sketcher.Constraint("Coincident", 66, 2, 67, 1),
    Sketcher.Constraint("Coincident", 67, 2, 0, 1),
    Sketcher.Constraint("Horizontal", 0),
    Sketcher.Constraint("Vertical", 1),
    Sketcher.Constraint("Horizontal", 2),
    Sketcher.Constraint("Vertical", 3),
    Sketcher.Constraint("Horizontal", 4),
    Sketcher.Constraint("Vertical", 5),
    Sketcher.Constraint("Horizontal", 6),
    Sketcher.Constraint("Vertical", 7),
    Sketcher.Constraint("Horizontal", 8),
    Sketcher.Constraint("Vertical", 9),
    Sketcher.Constraint("Horizontal", 10),
    Sketcher.Constraint("Vertical", 11),
    Sketcher.Constraint("Horizontal", 12),
    Sketcher.Constraint("Vertical", 13),
    Sketcher.Constraint("Horizontal", 14),
    Sketcher.Constraint("Vertical", 15),
    Sketcher.Constraint("Horizontal", 16),
    Sketcher.Constraint("Vertical", 17),
    Sketcher.Constraint("Horizontal", 18),
    Sketcher.Constraint("Vertical", 19),
    Sketcher.Constraint("Horizontal", 20),
    Sketcher.Constraint("Vertical", 21),
    Sketcher.Constraint("Horizontal", 22),
    Sketcher.Constraint("Vertical", 23),
    Sketcher.Constraint("Horizontal", 24),
    Sketcher.Constraint("Vertical", 25),
    Sketcher.Constraint("Horizontal", 26),
    Sketcher.Constraint("Vertical", 27),
    Sketcher.Constraint("Horizontal", 28),
    Sketcher.Constraint("Vertical", 29),
    Sketcher.Constraint("Horizontal", 30),
    Sketcher.Constraint("Vertical", 31),
    Sketcher.Constraint("Horizontal", 32),
    Sketcher.Constraint("Vertical", 33),
    Sketcher.Constraint("Horizontal", 34),
    Sketcher.Constraint("Vertical", 35),
    Sketcher.Constraint("Horizontal", 36),
    Sketcher.Constraint("Vertical", 37),
    Sketcher.Constraint("Horizontal", 38),
    Sketcher.Constraint("Vertical", 39),
    Sketcher.Constraint("Horizontal", 40),
    Sketcher.Constraint("Vertical", 41),
    Sketcher.Constraint("Horizontal", 42),
    Sketcher.Constraint("Vertical", 43),
    Sketcher.Constraint("Horizontal", 44),
    Sketcher.Constraint("Vertical", 45),
    Sketcher.Constraint("Horizontal", 46),
    Sketcher.Constraint("Vertical", 47),
    Sketcher.Constraint("Horizontal", 48),
    Sketcher.Constraint("Vertical", 49),
    Sketcher.Constraint("Horizontal", 50),
    Sketcher.Constraint("Vertical", 51),
    Sketcher.Constraint("Horizontal", 52),
    Sketcher.Constraint("Vertical", 53),
    Sketcher.Constraint("Horizontal", 54),
    Sketcher.Constraint("Vertical", 55),
    Sketcher.Constraint("Horizontal", 56),
    Sketcher.Constraint("Vertical", 57),
    Sketcher.Constraint("Horizontal", 58),
    Sketcher.Constraint("Vertical", 59),
    Sketcher.Constraint("Horizontal", 60),
    Sketcher.Constraint("Vertical", 61),
    Sketcher.Constraint("Horizontal", 62),
    Sketcher.Constraint("Vertical", 63),
    Sketcher.Constraint("Horizontal", 64),
    Sketcher.Constraint("Vertical", 65),
    Sketcher.Constraint("Horizontal", 66),
    Sketcher.Constraint("Vertical", 67),
    Sketcher.Constraint("Symmetric", 1, 2, 4, 2, -1, 1),
    Sketcher.Constraint("Symmetric", 0, 2, 5, 2, -1),
    Sketcher.Constraint("Symmetric", 35, 2, 38, 2, -1),
    Sketcher.Constraint("Symmetric", 33, 2, 40, 2, -1),
    Sketcher.Constraint("Symmetric", 31, 2, 42, 2, -1),
    Sketcher.Constraint("Symmetric", 29, 2, 44, 2, -1),
    Sketcher.Constraint("Symmetric", 27, 2, 46, 2, -1),
    Sketcher.Constraint("Symmetric", 25, 2, 48, 2, -1),
    Sketcher.Constraint("Symmetric", 23, 2, 50, 2, -1),
    Sketcher.Constraint("Symmetric", 21, 2, 52, 2, -1),
    Sketcher.Constraint("Symmetric", 19, 2, 54, 2, -1),
    Sketcher.Constraint("Symmetric", 17, 2, 56, 2, -1),
    Sketcher.Constraint("Symmetric", 15, 2, 58, 2, -1),
    Sketcher.Constraint("Symmetric", 13, 2, 60, 2, -1),
    Sketcher.Constraint("Symmetric", 11, 2, 62, 2, -1),
    Sketcher.Constraint("Symmetric", 9, 2, 64, 2, -1),
    Sketcher.Constraint("Symmetric", 7, 2, 66, 2, -1),
    Sketcher.Constraint("Vertical", 7, 2, 10, 2),
    Sketcher.Constraint("Vertical", 9, 2, 12, 2),
    Sketcher.Constraint("Vertical", 11, 2, 14, 2),
    Sketcher.Constraint("Vertical", 13, 2, 16, 2),
    Sketcher.Constraint("Vertical", 15, 2, 18, 2),
    Sketcher.Constraint("Vertical", 17, 2, 20, 2),
    Sketcher.Constraint("Vertical", 19, 2, 22, 2),
    Sketcher.Constraint("Vertical", 21, 2, 24, 2),
    Sketcher.Constraint("Vertical", 23, 2, 26, 2),
    Sketcher.Constraint("Vertical", 25, 2, 28, 2),
    Sketcher.Constraint("Vertical", 27, 2, 30, 2),
    Sketcher.Constraint("Vertical", 29, 2, 32, 2),
    Sketcher.Constraint("Vertical", 31, 2, 34, 2),
    Sketcher.Constraint("Vertical", 33, 2, 36, 2),
    Sketcher.Constraint("Equal", 7, 11),
    Sketcher.Constraint("Equal", 9, 13),
    Sketcher.Constraint("Equal", 11, 15),
    Sketcher.Constraint("Equal", 13, 17),
    Sketcher.Constraint("Equal", 15, 19),
    Sketcher.Constraint("Equal", 17, 21),
    Sketcher.Constraint("Equal", 19, 23),
    Sketcher.Constraint("Equal", 21, 25),
    Sketcher.Constraint("Equal", 23, 27),
    Sketcher.Constraint("Equal", 25, 29),
    Sketcher.Constraint("Equal", 27, 31),
    Sketcher.Constraint("Equal", 29, 33),
    Sketcher.Constraint("Equal", 31, 35),
    Sketcher.Constraint("Equal", 33, 37),
    Sketcher.Constraint("DistanceX", 0, 1, 0, 2, 6.3),
    Sketcher.Constraint("DistanceX", 8, 1, 8, 2, 5.8),
    Sketcher.Constraint("DistanceY", 7, 1, 7, 2, 0.5),
    Sketcher.Constraint("DistanceY", 9, 1, 9, 2, 1.5),
    Sketcher.Constraint("DistanceY", 3, 2, 3, 1, 47.224902),
    Sketcher.Constraint("DistanceX", 2, 2, 2, 1, 15.947306),
])
pocket1 = doc.addObject("PartDesign::Pocket", "Pocket")
body.addObject(pocket1)
pocket1.Profile = sketch3
pocket1.Type = "ThroughAll"
body2 = doc.addObject("PartDesign::Body", "Body001")

# Sketch on XZ plane
sketch4 = doc.addObject("Sketcher::SketchObject", "Sketch003")
body2.addObject(sketch4)
sketch4.AttachmentSupport = (doc.getObject("XZ_Plane001"), [""])
sketch4.MapMode = "FlatFace"
sketch4.AttachmentOffset = App.Placement(App.Vector(0, 0, -1.2), App.Rotation())
sketch4.addGeometry([
    Part.LineSegment(App.Vector(-25.75, -16, 0), App.Vector(-25.75, 16, 0)),
    Part.LineSegment(App.Vector(-25.75, 16, 0), App.Vector(24.25, 16, 0)),
    Part.LineSegment(App.Vector(24.25, 16, 0), App.Vector(24.25, -16, 0)),
    Part.LineSegment(App.Vector(24.25, -16, 0), App.Vector(-25.75, -16, 0)),
], False)
sketch4.addConstraint([
    Sketcher.Constraint("Coincident", 0, 2, 1, 1),
    Sketcher.Constraint("Coincident", 1, 2, 2, 1),
    Sketcher.Constraint("Coincident", 2, 2, 3, 1),
    Sketcher.Constraint("Coincident", 3, 2, 0, 1),
    Sketcher.Constraint("Vertical", 0),
    Sketcher.Constraint("Horizontal", 1),
    Sketcher.Constraint("Vertical", 2),
    Sketcher.Constraint("Horizontal", 3),
    Sketcher.Constraint("DistanceX", 1, 1, 1, 2, 50.0),
    Sketcher.Constraint("DistanceY", 0, 1, 0, 2, 32.0),
    Sketcher.Constraint("DistanceY", -1, 1, 0, 2, 16.0),
    Sketcher.Constraint("DistanceX", 0, 2, -1, 1, 25.75),
])
pad3 = doc.addObject("PartDesign::Pad", "Pad002")
body2.addObject(pad3)
pad3.Profile = sketch4
pad3.Length = 2.4
pad3.Reversed = True
body3 = doc.addObject("PartDesign::Body", "Body002")

# Sketch on XZ plane
sketch5 = doc.addObject("Sketcher::SketchObject", "Sketch004")
body3.addObject(sketch5)
sketch5.AttachmentSupport = (doc.getObject("XZ_Plane002"), [""])
sketch5.MapMode = "FlatFace"
sketch5.AttachmentOffset = App.Placement(App.Vector(0, 0, -3.6), App.Rotation())
sketch5.addGeometry([
    Part.LineSegment(App.Vector(-23.25, -16, 0), App.Vector(-23.25, 16, 0)),
    Part.LineSegment(App.Vector(-23.25, 16, 0), App.Vector(26.75, 16, 0)),
    Part.LineSegment(App.Vector(26.75, 16, 0), App.Vector(26.75, -16, 0)),
    Part.LineSegment(App.Vector(26.75, -16, 0), App.Vector(-23.25, -16, 0)),
], False)
sketch5.addConstraint([
    Sketcher.Constraint("Coincident", 0, 2, 1, 1),
    Sketcher.Constraint("Coincident", 1, 2, 2, 1),
    Sketcher.Constraint("Coincident", 2, 2, 3, 1),
    Sketcher.Constraint("Coincident", 3, 2, 0, 1),
    Sketcher.Constraint("Vertical", 0),
    Sketcher.Constraint("Horizontal", 1),
    Sketcher.Constraint("Vertical", 2),
    Sketcher.Constraint("Horizontal", 3),
    Sketcher.Constraint("DistanceX", 1, 1, 1, 2, 50.0),
    Sketcher.Constraint("DistanceY", 0, 1, 0, 2, 32.0),
    Sketcher.Constraint("DistanceY", -1, 1, 0, 2, 16.0),
    Sketcher.Constraint("DistanceX", 0, 2, -1, 1, 23.25),
])
pad4 = doc.addObject("PartDesign::Pad", "Pad003")
body3.addObject(pad4)
pad4.Profile = sketch5
pad4.Length = 1.6
pad4.Reversed = True

# Sketch on XZ plane
sketch6 = doc.addObject("Sketcher::SketchObject", "Sketch005")
body3.addObject(sketch6)
sketch6.AttachmentSupport = (doc.getObject("XZ_Plane002"), [""])
sketch6.MapMode = "FlatFace"
sketch6.AttachmentOffset = App.Placement(App.Vector(0, 0, -5.2), App.Rotation())
sketch6.addGeometry([
    Part.LineSegment(App.Vector(-23.25, -13, 0), App.Vector(-23.25, 13, 0)),
    Part.LineSegment(App.Vector(-23.25, 13, 0), App.Vector(-22.45, 13, 0)),
    Part.LineSegment(App.Vector(-22.45, 13, 0), App.Vector(-22.45, -13, 0)),
    Part.LineSegment(App.Vector(-22.45, -13, 0), App.Vector(-23.25, -13, 0)),
], False)
sketch6.addConstraint([
    Sketcher.Constraint("Coincident", 0, 2, 1, 1),
    Sketcher.Constraint("Coincident", 1, 2, 2, 1),
    Sketcher.Constraint("Coincident", 2, 2, 3, 1),
    Sketcher.Constraint("Coincident", 3, 2, 0, 1),
    Sketcher.Constraint("Vertical", 0),
    Sketcher.Constraint("Horizontal", 1),
    Sketcher.Constraint("Vertical", 2),
    Sketcher.Constraint("Horizontal", 3),
    Sketcher.Constraint("DistanceY", 0, 1, 0, 2, 26.0),
    Sketcher.Constraint("DistanceX", 1, 1, 1, 2, 0.8),
    Sketcher.Constraint("DistanceY", -1, 1, 0, 2, 13.0),
    Sketcher.Constraint("DistanceX", 0, 2, -1, 1, 23.25),
])
pad5 = doc.addObject("PartDesign::Pad", "Pad004")
body3.addObject(pad5)
pad5.Profile = sketch6
pad5.Length = 10
pad5.Reversed = True
body4 = doc.addObject("PartDesign::Body", "Body003")

# Sketch on YZ plane
sketch7 = doc.addObject("Sketcher::SketchObject", "Sketch006")
body4.addObject(sketch7)
sketch7.AttachmentSupport = (doc.getObject("YZ_Plane003"), [""])
sketch7.MapMode = "FlatFace"
sketch7.AttachmentOffset = App.Placement(App.Vector(0, 0, -22.45), App.Rotation())
sketch7.addGeometry(Part.Circle(App.Vector(10.7, 6, 0), App.Vector(0, 0, 1), 5.5), False)
sketch7.addConstraint([
    Sketcher.Constraint("Diameter", 0, 11.0),
    Sketcher.Constraint("DistanceY", -1, 1, 0, 3, 6.0),
    Sketcher.Constraint("DistanceX", -1, 1, 0, 3, 10.7),
])
pad6 = doc.addObject("PartDesign::Pad", "Pad005")
body4.addObject(pad6)
pad6.Profile = sketch7
pad6.Length = 25
body5 = doc.addObject("PartDesign::Body", "Body004")

# Sketch on YZ plane
sketch8 = doc.addObject("Sketcher::SketchObject", "Sketch007")
body5.addObject(sketch8)
sketch8.AttachmentSupport = (doc.getObject("YZ_Plane004"), [""])
sketch8.MapMode = "FlatFace"
sketch8.AttachmentOffset = App.Placement(App.Vector(0, 0, -22.45), App.Rotation())
sketch8.addGeometry(Part.Circle(App.Vector(10.7, -6, 0), App.Vector(0, 0, 1), 5.5), False)
sketch8.addConstraint([
    Sketcher.Constraint("Diameter", 0, 11.0),
    Sketcher.Constraint("DistanceY", 0, 3, -1, 1, 6.0),
    Sketcher.Constraint("DistanceX", -1, 1, 0, 3, 10.7),
])
pad7 = doc.addObject("PartDesign::Pad", "Pad006")
body5.addObject(pad7)
pad7.Profile = sketch8
pad7.Length = 25

doc.recompute()
